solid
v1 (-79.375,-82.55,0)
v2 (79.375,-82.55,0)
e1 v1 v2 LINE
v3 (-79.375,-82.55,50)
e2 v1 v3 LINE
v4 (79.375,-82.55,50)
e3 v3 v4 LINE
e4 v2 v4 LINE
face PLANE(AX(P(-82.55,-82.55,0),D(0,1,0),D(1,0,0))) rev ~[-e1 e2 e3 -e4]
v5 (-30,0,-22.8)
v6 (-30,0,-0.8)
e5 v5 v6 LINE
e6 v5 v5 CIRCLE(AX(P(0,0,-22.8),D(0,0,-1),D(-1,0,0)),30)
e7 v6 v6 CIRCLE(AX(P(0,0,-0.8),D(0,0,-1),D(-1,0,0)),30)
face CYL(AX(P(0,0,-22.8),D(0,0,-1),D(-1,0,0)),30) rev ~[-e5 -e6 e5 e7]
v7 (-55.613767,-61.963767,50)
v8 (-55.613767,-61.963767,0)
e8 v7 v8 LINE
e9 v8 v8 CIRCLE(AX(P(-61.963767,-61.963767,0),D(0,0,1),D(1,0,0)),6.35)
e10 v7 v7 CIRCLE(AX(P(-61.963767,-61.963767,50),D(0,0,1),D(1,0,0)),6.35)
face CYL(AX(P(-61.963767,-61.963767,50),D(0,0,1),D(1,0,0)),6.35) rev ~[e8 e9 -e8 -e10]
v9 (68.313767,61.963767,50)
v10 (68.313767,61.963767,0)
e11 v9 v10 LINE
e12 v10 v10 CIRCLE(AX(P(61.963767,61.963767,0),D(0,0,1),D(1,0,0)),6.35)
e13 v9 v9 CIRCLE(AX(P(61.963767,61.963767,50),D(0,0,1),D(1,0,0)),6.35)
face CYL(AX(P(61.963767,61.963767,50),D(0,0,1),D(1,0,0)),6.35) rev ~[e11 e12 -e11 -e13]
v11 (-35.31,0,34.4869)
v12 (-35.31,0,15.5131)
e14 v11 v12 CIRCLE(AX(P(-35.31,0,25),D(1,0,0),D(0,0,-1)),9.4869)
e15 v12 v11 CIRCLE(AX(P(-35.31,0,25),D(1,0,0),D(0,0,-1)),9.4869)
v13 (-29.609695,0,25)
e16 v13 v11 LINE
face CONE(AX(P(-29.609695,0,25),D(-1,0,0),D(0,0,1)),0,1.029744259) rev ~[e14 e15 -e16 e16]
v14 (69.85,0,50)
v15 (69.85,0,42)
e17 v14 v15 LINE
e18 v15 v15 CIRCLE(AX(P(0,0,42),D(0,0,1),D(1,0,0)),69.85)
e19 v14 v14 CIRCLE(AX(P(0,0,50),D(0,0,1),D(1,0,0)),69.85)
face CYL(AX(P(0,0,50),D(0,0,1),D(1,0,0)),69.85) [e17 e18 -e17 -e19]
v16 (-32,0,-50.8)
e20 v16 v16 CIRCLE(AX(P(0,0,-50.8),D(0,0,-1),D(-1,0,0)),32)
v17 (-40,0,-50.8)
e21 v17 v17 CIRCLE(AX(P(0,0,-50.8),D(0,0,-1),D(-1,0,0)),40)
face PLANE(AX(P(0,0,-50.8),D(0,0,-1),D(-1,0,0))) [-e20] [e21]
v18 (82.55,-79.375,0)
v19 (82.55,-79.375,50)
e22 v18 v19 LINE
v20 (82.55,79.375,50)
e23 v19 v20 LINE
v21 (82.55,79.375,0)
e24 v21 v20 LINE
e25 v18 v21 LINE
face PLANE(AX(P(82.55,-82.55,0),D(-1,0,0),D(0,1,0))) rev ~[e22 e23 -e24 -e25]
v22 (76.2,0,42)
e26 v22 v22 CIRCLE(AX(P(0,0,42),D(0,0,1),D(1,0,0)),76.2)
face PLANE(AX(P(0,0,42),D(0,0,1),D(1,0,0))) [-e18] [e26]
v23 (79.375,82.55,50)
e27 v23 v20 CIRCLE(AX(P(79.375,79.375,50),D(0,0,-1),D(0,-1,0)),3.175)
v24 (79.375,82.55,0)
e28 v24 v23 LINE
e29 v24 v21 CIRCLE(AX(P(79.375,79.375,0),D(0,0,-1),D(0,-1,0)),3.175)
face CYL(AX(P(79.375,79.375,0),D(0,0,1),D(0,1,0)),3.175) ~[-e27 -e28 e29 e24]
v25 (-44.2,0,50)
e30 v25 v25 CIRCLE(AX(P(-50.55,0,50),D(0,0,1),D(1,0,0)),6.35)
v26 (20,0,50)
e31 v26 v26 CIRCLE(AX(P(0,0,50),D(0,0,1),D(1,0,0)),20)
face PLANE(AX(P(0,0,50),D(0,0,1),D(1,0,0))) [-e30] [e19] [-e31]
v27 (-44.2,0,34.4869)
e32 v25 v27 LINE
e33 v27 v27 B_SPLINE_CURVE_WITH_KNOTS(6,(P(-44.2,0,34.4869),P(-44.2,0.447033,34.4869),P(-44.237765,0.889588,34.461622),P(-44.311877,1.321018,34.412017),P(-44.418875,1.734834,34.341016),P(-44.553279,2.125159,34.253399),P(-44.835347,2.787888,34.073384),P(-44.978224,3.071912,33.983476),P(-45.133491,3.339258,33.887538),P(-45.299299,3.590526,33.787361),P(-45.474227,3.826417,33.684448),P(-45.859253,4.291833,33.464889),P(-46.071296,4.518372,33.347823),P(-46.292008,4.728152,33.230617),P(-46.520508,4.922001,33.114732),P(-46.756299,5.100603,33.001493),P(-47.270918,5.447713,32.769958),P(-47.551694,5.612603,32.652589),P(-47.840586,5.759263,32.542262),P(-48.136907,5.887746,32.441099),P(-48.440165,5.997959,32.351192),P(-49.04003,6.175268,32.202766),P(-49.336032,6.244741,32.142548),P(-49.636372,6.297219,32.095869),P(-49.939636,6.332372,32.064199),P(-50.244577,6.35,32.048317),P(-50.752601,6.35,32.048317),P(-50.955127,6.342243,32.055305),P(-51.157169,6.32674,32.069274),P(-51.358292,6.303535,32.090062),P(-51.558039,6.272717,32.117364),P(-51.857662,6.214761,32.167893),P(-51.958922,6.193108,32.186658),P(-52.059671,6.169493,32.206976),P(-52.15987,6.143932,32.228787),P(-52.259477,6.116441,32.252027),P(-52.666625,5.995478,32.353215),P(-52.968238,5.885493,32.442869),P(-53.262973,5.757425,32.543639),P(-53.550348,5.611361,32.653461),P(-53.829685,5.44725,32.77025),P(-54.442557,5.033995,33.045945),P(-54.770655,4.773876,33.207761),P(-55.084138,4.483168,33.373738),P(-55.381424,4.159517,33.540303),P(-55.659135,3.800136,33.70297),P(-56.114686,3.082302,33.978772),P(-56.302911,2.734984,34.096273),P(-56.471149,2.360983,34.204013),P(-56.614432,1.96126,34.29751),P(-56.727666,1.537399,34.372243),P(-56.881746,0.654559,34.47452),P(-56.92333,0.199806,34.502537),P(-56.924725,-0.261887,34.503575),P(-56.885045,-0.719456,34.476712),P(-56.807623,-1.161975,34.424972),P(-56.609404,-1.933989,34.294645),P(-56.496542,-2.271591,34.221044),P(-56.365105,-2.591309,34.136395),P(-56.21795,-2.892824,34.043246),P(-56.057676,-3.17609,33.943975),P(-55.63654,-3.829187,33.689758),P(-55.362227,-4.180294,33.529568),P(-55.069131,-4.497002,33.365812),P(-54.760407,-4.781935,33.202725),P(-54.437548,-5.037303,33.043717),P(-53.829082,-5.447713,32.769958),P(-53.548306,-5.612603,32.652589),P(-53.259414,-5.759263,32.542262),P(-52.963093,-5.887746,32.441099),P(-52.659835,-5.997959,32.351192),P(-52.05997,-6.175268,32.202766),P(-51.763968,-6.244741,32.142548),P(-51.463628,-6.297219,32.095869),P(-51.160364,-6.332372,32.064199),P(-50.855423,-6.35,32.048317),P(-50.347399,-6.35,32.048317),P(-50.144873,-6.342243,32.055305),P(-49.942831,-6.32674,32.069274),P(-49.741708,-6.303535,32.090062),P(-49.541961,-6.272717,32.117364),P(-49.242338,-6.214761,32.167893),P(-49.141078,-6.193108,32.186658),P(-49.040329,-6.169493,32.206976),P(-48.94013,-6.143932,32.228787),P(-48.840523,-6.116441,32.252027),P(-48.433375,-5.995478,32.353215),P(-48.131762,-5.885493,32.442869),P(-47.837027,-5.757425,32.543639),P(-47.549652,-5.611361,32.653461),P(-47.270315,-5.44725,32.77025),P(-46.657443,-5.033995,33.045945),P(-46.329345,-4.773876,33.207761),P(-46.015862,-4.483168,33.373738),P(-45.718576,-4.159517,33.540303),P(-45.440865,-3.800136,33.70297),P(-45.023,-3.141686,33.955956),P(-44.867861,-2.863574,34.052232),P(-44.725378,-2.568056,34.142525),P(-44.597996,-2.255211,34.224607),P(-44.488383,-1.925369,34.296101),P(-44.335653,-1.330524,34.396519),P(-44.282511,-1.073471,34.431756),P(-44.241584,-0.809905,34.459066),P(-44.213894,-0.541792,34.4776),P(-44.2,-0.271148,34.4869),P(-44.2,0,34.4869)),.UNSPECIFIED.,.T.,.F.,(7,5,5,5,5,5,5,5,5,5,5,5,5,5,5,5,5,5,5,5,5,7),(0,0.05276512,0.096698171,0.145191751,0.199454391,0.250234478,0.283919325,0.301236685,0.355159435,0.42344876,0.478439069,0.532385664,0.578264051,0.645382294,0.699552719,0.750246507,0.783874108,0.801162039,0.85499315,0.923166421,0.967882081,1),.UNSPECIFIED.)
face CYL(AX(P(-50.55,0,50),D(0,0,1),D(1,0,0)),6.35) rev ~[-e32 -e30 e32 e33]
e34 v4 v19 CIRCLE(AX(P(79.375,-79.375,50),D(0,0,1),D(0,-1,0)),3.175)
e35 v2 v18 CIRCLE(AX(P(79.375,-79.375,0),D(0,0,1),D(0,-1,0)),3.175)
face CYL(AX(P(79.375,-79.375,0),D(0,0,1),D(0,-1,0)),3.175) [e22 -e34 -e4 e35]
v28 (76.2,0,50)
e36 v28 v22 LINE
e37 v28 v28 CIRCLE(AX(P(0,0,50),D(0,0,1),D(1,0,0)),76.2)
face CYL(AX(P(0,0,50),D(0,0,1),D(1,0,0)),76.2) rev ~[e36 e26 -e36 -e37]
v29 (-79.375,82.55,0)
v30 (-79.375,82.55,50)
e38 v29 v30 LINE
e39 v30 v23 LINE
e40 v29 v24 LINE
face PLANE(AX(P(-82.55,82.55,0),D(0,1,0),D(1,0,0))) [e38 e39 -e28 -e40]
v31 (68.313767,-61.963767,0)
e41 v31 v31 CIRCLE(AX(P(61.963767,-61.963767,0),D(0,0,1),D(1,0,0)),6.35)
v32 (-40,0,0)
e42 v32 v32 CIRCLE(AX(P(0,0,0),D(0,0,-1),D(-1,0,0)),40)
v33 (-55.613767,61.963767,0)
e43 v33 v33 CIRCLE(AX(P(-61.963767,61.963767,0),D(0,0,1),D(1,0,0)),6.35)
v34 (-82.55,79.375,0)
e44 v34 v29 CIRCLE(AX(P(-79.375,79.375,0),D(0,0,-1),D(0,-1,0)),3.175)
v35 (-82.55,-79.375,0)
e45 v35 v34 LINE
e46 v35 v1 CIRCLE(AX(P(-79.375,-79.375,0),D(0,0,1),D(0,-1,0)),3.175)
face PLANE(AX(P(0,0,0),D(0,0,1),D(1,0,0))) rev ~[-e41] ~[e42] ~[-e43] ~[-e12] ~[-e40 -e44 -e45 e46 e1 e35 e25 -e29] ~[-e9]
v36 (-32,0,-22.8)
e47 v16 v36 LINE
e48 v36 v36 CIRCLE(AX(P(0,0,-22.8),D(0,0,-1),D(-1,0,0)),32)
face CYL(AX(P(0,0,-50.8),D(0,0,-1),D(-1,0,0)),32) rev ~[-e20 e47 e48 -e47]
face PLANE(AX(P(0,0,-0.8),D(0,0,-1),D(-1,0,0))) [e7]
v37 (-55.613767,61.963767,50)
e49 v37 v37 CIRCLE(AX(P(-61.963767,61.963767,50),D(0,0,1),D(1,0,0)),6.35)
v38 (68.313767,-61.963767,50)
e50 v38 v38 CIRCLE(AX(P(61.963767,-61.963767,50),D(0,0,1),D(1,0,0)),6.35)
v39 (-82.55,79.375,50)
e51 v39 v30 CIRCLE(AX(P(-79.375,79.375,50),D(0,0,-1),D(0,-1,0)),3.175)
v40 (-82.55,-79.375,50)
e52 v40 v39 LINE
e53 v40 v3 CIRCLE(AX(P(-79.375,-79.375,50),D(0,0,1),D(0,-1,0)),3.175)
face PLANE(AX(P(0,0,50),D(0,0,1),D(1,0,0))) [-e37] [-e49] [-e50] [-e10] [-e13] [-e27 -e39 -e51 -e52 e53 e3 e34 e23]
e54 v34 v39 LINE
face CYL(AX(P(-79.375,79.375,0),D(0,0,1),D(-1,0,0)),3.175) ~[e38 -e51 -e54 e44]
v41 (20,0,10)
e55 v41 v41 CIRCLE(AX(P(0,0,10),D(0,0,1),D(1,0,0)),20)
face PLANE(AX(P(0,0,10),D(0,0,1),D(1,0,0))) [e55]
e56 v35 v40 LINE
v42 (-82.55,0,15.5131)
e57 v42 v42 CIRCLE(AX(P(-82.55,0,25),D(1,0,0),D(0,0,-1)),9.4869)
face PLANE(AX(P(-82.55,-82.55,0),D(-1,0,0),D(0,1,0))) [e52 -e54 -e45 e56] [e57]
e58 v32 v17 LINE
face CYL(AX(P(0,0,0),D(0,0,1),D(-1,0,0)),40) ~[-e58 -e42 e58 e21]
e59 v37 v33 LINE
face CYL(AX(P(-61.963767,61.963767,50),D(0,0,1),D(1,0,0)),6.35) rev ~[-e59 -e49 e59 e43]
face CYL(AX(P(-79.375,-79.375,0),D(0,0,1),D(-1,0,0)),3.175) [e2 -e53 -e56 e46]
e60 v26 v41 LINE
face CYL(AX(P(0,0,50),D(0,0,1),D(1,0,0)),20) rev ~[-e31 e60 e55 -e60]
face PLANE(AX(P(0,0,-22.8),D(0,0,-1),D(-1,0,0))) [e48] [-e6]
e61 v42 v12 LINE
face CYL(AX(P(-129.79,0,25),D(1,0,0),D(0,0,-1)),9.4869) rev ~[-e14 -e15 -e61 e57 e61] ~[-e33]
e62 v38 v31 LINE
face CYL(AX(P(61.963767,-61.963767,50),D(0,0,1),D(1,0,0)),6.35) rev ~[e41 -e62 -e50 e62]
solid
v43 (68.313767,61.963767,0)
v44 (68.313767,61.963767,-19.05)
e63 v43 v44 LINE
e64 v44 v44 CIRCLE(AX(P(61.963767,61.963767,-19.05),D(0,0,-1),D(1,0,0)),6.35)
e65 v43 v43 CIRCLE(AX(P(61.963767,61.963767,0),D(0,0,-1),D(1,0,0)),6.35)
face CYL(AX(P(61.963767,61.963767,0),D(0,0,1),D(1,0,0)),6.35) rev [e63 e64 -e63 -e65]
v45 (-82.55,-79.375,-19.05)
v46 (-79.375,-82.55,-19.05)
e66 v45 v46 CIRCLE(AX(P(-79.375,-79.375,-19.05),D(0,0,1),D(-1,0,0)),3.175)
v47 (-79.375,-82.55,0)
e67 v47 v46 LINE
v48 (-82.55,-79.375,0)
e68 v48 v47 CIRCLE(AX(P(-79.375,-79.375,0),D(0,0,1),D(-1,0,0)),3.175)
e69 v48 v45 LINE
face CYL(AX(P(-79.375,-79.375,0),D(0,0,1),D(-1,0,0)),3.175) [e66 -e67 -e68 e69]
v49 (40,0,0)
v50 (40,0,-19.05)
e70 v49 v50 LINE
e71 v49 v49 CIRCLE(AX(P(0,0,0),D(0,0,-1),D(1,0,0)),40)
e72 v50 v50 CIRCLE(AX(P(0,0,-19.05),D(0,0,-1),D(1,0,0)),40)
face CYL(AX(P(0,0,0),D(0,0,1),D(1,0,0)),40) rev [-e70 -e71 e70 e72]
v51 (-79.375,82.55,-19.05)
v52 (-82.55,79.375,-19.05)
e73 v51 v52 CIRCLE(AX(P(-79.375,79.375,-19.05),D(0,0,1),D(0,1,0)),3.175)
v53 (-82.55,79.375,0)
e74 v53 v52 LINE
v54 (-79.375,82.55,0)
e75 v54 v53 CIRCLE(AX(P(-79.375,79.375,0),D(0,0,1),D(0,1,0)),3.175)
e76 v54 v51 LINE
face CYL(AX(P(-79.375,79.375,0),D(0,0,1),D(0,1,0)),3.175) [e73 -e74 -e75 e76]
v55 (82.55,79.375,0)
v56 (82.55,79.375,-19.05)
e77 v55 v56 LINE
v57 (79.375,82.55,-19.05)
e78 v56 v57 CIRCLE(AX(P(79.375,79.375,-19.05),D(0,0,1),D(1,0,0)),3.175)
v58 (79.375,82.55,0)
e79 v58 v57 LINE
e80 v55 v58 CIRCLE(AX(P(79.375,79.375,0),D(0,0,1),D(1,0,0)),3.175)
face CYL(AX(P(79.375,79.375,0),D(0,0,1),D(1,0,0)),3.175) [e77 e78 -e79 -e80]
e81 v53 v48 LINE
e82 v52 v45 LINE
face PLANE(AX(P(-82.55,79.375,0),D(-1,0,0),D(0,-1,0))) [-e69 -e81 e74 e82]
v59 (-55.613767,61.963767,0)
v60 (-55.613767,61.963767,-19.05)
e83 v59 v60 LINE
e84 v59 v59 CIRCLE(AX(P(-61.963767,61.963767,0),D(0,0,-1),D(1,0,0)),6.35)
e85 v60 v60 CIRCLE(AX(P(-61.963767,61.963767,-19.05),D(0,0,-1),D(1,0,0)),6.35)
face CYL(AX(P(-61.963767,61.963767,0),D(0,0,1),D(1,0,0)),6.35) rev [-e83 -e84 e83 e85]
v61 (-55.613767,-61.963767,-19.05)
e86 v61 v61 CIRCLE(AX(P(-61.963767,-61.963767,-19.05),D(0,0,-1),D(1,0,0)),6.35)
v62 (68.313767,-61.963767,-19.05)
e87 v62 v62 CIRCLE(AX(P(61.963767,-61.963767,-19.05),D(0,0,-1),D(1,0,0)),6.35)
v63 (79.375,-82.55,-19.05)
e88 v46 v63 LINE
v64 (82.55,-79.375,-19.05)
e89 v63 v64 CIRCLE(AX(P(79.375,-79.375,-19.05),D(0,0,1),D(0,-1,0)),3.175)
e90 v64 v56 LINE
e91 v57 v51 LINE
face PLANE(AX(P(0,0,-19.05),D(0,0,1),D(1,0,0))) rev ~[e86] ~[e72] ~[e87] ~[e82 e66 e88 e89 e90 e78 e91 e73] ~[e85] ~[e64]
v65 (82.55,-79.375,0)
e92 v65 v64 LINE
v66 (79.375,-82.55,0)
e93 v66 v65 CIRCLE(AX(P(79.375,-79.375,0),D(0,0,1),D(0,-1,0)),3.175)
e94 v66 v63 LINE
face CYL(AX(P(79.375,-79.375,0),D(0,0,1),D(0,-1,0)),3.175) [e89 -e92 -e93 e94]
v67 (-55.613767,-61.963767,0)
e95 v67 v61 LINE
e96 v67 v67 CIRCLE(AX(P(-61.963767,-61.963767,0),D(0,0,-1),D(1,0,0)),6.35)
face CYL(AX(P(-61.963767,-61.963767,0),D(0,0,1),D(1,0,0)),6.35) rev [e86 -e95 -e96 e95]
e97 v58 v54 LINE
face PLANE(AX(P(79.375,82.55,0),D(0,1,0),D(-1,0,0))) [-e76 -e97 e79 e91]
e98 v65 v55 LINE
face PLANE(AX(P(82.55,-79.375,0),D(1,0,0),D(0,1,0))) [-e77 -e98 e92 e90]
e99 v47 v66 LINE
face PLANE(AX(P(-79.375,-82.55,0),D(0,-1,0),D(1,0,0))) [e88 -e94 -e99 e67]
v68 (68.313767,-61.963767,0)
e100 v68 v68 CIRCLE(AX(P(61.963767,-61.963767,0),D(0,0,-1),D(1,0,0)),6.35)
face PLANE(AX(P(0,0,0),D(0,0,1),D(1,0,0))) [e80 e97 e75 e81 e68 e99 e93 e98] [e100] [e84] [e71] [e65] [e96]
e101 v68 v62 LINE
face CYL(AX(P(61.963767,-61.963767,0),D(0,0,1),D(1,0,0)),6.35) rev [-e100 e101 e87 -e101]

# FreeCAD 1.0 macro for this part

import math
import FreeCAD as App
import Part
import Sketcher

V = App.Vector
Q = App.Units.Quantity


def edges_at(feature, points):
    """Names of the edges that pass closest to the given points."""
    edges = feature.Shape.Edges
    near = lambda p: min(range(len(edges)), key=lambda i: edges[i].distToShape(Part.Vertex(*p))[0])
    return sorted({f"Edge{near(p) + 1}" for p in points})


def add_polygon(sketch, points):
    """Adds a closed chain of lines whose ends are joined by coincident constraints."""
    first, n = sketch.GeometryCount, len(points)
    for a, b in zip(points, points[1:] + points[:1]):
        sketch.addGeometry(Part.LineSegment(App.Vector(*a, 0), App.Vector(*b, 0)), False)
    for i in range(n):
        sketch.addConstraint(Sketcher.Constraint("Coincident", first + i, 2, first + (i + 1) % n, 1))

doc = App.newDocument("Part")
body = doc.addObject("PartDesign::Body", "Body")

# Sketch on XY plane
sketch1 = body.newObject("Sketcher::SketchObject", "Sketch")
sketch1.AttachmentSupport = (doc.getObject("XY_Plane"), [""])
sketch1.MapMode = "FlatFace"
add_polygon(sketch1, [(-83, 83), (-83, -83), (83, -83), (83, 83)])  # lines 0-3
sketch1.addConstraint([
    Sketcher.Constraint("Vertical", 0),
    Sketcher.Constraint("Horizontal", 1),
    Sketcher.Constraint("Vertical", 2),
    Sketcher.Constraint("Horizontal", 3),
    Sketcher.Constraint("Symmetric", 0, 2, 2, 2, -1, 1),
    Sketcher.Constraint("Equal", 3, 0),
    Sketcher.Constraint("DistanceX", 1, 1, 1, 2, Q("6.5 in")),
])
pad1 = body.newObject("PartDesign::Pad", "Pad")
pad1.Profile = sketch1
pad1.Length = 50

# Sketch on XY plane
sketch2 = body.newObject("Sketcher::SketchObject", "Sketch001")
sketch2.AttachmentSupport = (doc.getObject("XY_Plane"), [""])
sketch2.MapMode = "FlatFace"
sketch2.addGeometry(Part.Circle(V(0, 0, 0), V(0, 0, 1), 40), False)
sketch2.addConstraint([
    Sketcher.Constraint("Coincident", 0, 3, -1, 1),
    Sketcher.Constraint("Diameter", 0, 80.0),
])
pad2 = body.newObject("PartDesign::Pad", "Pad001")
pad2.Profile = sketch2
pad2.Length = Q("2 in")
pad2.Reversed = True

# Sketch on XY plane
sketch3 = body.newObject("Sketcher::SketchObject", "Sketch002")
sketch3.AttachmentSupport = (doc.getObject("XY_Plane"), [""])
sketch3.MapMode = "FlatFace"
sketch3.AttachmentOffset = App.Placement(V(0, 0, -2 * 25.4), App.Rotation())
sketch3.addGeometry(Part.Circle(V(0, 0, 0), V(0, 0, 1), 32), False)
sketch3.addConstraint([
    Sketcher.Constraint("Coincident", 0, 3, -1, 1),
    Sketcher.Constraint("Diameter", 0, 64.0),
])
pocket1 = body.newObject("PartDesign::Pocket", "Pocket")
pocket1.Profile = sketch3
pocket1.Length = 28
pocket1.Reversed = True

# Sketch on XY plane
sketch4 = body.newObject("Sketcher::SketchObject", "Sketch003")
sketch4.AttachmentSupport = (doc.getObject("XY_Plane"), [""])
sketch4.MapMode = "FlatFace"
sketch4.AttachmentOffset = App.Placement(V(0, 0, -22.8), App.Rotation())
sketch4.addGeometry(Part.Circle(V(0, 0, 0), V(0, 0, 1), 30), False)
sketch4.addConstraint([
    Sketcher.Constraint("Coincident", 0, 3, -1, 1),
    Sketcher.Constraint("Diameter", 0, 60.0),
])
pocket2 = body.newObject("PartDesign::Pocket", "Pocket001")
pocket2.Profile = sketch4
pocket2.Length = 22
pocket2.Reversed = True
doc.recompute()

fillet = body.newObject("PartDesign::Fillet", "Fillet")
fillet.Base = (pocket2, edges_at(pocket2, [
    (-82.55, 82.55, 25),
    (82.55, 82.55, 25),
    (82.55, -82.55, 25),
    (-82.55, -82.55, 25),
]))
fillet.Radius = Q("0.125 in")

# Sketch on XY plane
sketch5 = body.newObject("Sketcher::SketchObject", "Sketch004")
sketch5.AttachmentSupport = (doc.getObject("XY_Plane"), [""])
sketch5.MapMode = "FlatFace"
sketch5.AttachmentOffset = App.Placement(V(0, 0, 50), App.Rotation())
sketch5.addGeometry(Part.Circle(V(0, 0, 0), V(0, 0, 1), 20), False)
sketch5.addConstraint([
    Sketcher.Constraint("Coincident", 0, 3, -1, 1),
    Sketcher.Constraint("Diameter", 0, 40.0),
])
pocket3 = body.newObject("PartDesign::Pocket", "Pocket002")
pocket3.Profile = sketch5
pocket3.Length = 40

# Sketch on XY plane
sketch6 = body.newObject("Sketcher::SketchObject", "Sketch005")
sketch6.AttachmentSupport = (doc.getObject("XY_Plane"), [""])
sketch6.MapMode = "FlatFace"
sketch6.AttachmentOffset = App.Placement(V(0, 0, 50), App.Rotation())
sketch6.addGeometry([
    Part.Circle(V(0, 0, 0), V(0, 0, 1), 76),
    Part.Circle(V(0, 0, 0), V(0, 0, 1), 70),
], False)
sketch6.addConstraint([
    Sketcher.Constraint("Coincident", 0, 3, -1, 1),
    Sketcher.Constraint("Coincident", 1, 3, -1, 1),
    Sketcher.Constraint("Diameter", 0, Q("6 in")),
    Sketcher.Constraint("Diameter", 1, Q("5.5 in")),
])
pocket4 = body.newObject("PartDesign::Pocket", "Pocket003")
pocket4.Profile = sketch6
pocket4.Length = 8

# Sketch on YZ plane
sketch7 = body.newObject("Sketcher::SketchObject", "Sketch006")
sketch7.AttachmentSupport = (doc.getObject("YZ_Plane"), [""])
sketch7.MapMode = "FlatFace"
sketch7.AttachmentOffset = App.Placement(V(0, 0, -3.25 * 25.4), App.Rotation())
sketch7.addGeometry(Part.Circle(V(0, 25, 0), V(0, 0, 1), 9), False)
sketch7.addConstraint([
    Sketcher.Constraint("PointOnObject", 0, 3, -2),
    Sketcher.Constraint("Diameter", 0, Q("0.747 in")),
    Sketcher.Constraint("DistanceY", -1, 1, 0, 3, 25.0),
])
doc.recompute()
hole = body.newObject("PartDesign::Hole", "Hole")
hole.Profile = sketch7
hole.ThreadType = "None"
hole.Diameter = Q("0.747 in")
hole.DepthType = "Dimension"
hole.Depth = 47.24
hole.DrillPoint = "Angled"
hole.DrillPointAngle = 118
hole.Reversed = True

# Sketch on XY plane
sketch8 = body.newObject("Sketcher::SketchObject", "Sketch007")
sketch8.AttachmentSupport = (doc.getObject("XY_Plane"), [""])
sketch8.MapMode = "FlatFace"
sketch8.AttachmentOffset = App.Placement(V(0, 0, 50), App.Rotation())
sketch8.addGeometry(Part.Circle(V(-51, 0, 0), V(0, 0, 1), 6), False)
sketch8.addConstraint([
    Sketcher.Constraint("PointOnObject", 0, 3, -1),
    Sketcher.Constraint("Diameter", 0, Q("0.5 in")),
    Sketcher.Constraint("DistanceX", 0, 3, -1, 1, 50.55),
])
pocket5 = body.newObject("PartDesign::Pocket", "Pocket004")
pocket5.Profile = sketch8
pocket5.Length = 25

# Sketch on XY plane
sketch9 = body.newObject("Sketcher::SketchObject", "Sketch008")
sketch9.AttachmentSupport = (doc.getObject("XY_Plane"), [""])
sketch9.MapMode = "FlatFace"
sketch9.AttachmentOffset = App.Placement(V(0, 0, 50), App.Rotation())
sketch9.addGeometry([
    Part.Circle(V(-62, 62, 0), V(0, 0, 1), 6),
    Part.Circle(V(62, 62, 0), V(0, 0, 1), 6),
    Part.Circle(V(62, -62, 0), V(0, 0, 1), 6),
    Part.Circle(V(-62, -62, 0), V(0, 0, 1), 6),
], False)
sketch9.addConstraint([
    Sketcher.Constraint("Equal", 0, 1),
    Sketcher.Constraint("Equal", 1, 2),
    Sketcher.Constraint("Equal", 2, 3),
    Sketcher.Constraint("Symmetric", 0, 3, 2, 3, -1, 1),
    Sketcher.Constraint("Symmetric", 1, 3, 3, 3, -1, 1),
    Sketcher.Constraint("Symmetric", 0, 3, 1, 3, -2),
    Sketcher.Constraint("Diameter", 0, Q("0.5 in")),
    Sketcher.Constraint("DistanceX", 0, 3, -1, 1, 61.963767),
    Sketcher.Constraint("DistanceY", -1, 1, 0, 3, 61.963767),
])
pocket6 = body.newObject("PartDesign::Pocket", "Pocket005")
pocket6.Profile = sketch9
pocket6.Type = "ThroughAll"
body2 = doc.addObject("PartDesign::Body", "Body001")

# Sketch on XY plane
sketch10 = body2.newObject("Sketcher::SketchObject", "Sketch009")
sketch10.AttachmentSupport = (doc.getObject("XY_Plane001"), [""])
sketch10.MapMode = "FlatFace"
sketch10.addGeometry([
    Part.LineSegment(V(-79.4, 82.5, 0), V(79.4, 82.5, 0)),  # 0
    Part.ArcOfCircle(Part.Circle(V(79.4, 79.4, 0), V(0, 0, 1), 3.2), math.radians(0), math.radians(90)),  # 1
    Part.LineSegment(V(82.5, 79.4, 0), V(82.5, -79.4, 0)),  # 2
    Part.ArcOfCircle(Part.Circle(V(79.4, -79.4, 0), V(0, 0, 1), 3.2), math.radians(-90), math.radians(0)),  # 3
    Part.LineSegment(V(79.4, -82.5, 0), V(-79.4, -82.5, 0)),  # 4
    Part.ArcOfCircle(Part.Circle(V(-79.4, -79.4, 0), V(0, 0, 1), 3.2), math.radians(-180), math.radians(-90)),  # 5
    Part.LineSegment(V(-82.5, -79.4, 0), V(-82.5, 79.4, 0)),  # 6
    Part.ArcOfCircle(Part.Circle(V(-79.4, 79.4, 0), V(0, 0, 1), 3.2), math.radians(90), math.radians(180)),  # 7
    Part.Circle(V(-62, -62, 0), V(0, 0, 1), 6.3),  # 8
    Part.Circle(V(62, -62, 0), V(0, 0, 1), 6.3),  # 9
    Part.Circle(V(-62, 62, 0), V(0, 0, 1), 6.3),  # 10
    Part.Circle(V(0, 0, 0), V(0, 0, 1), 40),  # 11
    Part.Circle(V(62, 62, 0), V(0, 0, 1), 6.3),  # 12
], False)
sketch10.addConstraint([
    Sketcher.Constraint("Tangent", 0, 2, 1, 2),
    Sketcher.Constraint("Tangent", 1, 1, 2, 1),
    Sketcher.Constraint("Tangent", 2, 2, 3, 2),
    Sketcher.Constraint("Tangent", 3, 1, 4, 1),
    Sketcher.Constraint("Tangent", 4, 2, 5, 2),
    Sketcher.Constraint("Tangent", 5, 1, 6, 1),
    Sketcher.Constraint("Tangent", 6, 2, 7, 2),
    Sketcher.Constraint("Tangent", 7, 1, 0, 1),
    Sketcher.Constraint("Horizontal", 0),
    Sketcher.Constraint("Vertical", 2),
    Sketcher.Constraint("Horizontal", 4),
    Sketcher.Constraint("Vertical", 6),
    Sketcher.Constraint("Coincident", 11, 3, -1, 1),
    Sketcher.Constraint("Equal", 1, 3),
    Sketcher.Constraint("Equal", 3, 5),
    Sketcher.Constraint("Equal", 5, 7),
    Sketcher.Constraint("Equal", 8, 9),
    Sketcher.Constraint("Equal", 9, 10),
    Sketcher.Constraint("Equal", 10, 12),
    Sketcher.Constraint("Symmetric", 1, 3, 5, 3, -1, 1),
    Sketcher.Constraint("Symmetric", 9, 3, 10, 3, -1, 1),
    Sketcher.Constraint("Symmetric", 8, 3, 12, 3, -1, 1),
    Sketcher.Constraint("Symmetric", 8, 3, 9, 3, -2),
    Sketcher.Constraint("Equal", 4, 2),
    Sketcher.Constraint("Diameter", 8, Q("0.5 in")),
    Sketcher.Constraint("Radius", 1, Q("0.125 in")),
    Sketcher.Constraint("DistanceX", 0, 1, 0, 2, Q("6.25 in")),
    Sketcher.Constraint("Diameter", 11, 80.0),
    Sketcher.Constraint("DistanceX", 8, 3, -1, 1, 61.963767),
    Sketcher.Constraint("DistanceY", 8, 3, -1, 1, 61.963767),
])
pad3 = body2.newObject("PartDesign::Pad", "Pad002")
pad3.Profile = sketch10
pad3.Length = Q("0.75 in")
pad3.Reversed = True

doc.recompute()
